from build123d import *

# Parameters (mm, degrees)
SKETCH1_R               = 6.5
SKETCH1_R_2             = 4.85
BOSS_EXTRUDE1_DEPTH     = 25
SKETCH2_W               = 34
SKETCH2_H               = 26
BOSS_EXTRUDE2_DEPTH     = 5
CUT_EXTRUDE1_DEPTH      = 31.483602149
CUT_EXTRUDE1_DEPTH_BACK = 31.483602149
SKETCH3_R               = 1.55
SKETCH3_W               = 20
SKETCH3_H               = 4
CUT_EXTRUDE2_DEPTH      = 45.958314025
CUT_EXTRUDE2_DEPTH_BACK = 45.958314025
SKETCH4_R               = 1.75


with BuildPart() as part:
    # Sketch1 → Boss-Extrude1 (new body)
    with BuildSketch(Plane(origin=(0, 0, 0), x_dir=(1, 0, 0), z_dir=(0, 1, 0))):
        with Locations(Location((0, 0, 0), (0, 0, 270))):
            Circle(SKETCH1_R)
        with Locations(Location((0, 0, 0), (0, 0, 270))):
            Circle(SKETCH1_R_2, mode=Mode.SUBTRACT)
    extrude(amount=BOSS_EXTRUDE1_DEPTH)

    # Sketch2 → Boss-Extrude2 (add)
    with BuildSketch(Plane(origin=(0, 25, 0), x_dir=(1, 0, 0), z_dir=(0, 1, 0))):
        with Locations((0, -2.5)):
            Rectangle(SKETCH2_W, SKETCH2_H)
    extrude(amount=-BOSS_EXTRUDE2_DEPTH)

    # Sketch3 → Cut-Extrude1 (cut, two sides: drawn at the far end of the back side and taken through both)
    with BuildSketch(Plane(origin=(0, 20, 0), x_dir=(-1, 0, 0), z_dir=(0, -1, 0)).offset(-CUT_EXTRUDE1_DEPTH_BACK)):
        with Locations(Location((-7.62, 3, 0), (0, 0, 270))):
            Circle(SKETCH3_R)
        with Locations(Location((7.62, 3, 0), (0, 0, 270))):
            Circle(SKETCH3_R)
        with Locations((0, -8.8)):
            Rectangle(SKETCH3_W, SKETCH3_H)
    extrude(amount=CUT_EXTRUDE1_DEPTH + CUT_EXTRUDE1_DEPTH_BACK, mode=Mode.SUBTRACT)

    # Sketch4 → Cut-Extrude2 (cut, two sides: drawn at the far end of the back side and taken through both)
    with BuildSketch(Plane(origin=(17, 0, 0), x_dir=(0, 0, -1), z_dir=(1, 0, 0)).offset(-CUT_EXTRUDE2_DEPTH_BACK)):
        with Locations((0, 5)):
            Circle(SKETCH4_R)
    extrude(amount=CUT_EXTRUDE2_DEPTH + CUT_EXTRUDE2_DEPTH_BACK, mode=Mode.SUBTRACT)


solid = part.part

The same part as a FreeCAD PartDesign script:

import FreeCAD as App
import Part
import Sketcher

V = App.Vector


def add_polygon(sketch, points):
    """Adds a closed chain of lines whose ends are joined by coincident constraints."""
    first, n = sketch.GeometryCount, len(points)
    for a, b in zip(points, points[1:] + points[:1]):
        sketch.addGeometry(Part.LineSegment(App.Vector(*a, 0), App.Vector(*b, 0)), False)
    for i in range(n):
        sketch.addConstraint(Sketcher.Constraint("Coincident", first + i, 2, first + (i + 1) % n, 1))

doc = App.newDocument("Part")
body = doc.addObject("PartDesign::Body", "Body")

sketch1 = doc.addObject("Sketcher::SketchObject", "Sketch")
body.addObject(sketch1)
sketch1.AttachmentSupport = (doc.XZ_Plane, [""])
sketch1.MapMode = "FlatFace"
sketch1.addGeometry([
    Part.Circle(V(0, 0, 0), V(0, 0, 1), 6.5),
    Part.Circle(V(0, 0, 0), V(0, 0, 1), 4.8),
], False)
sketch1.addConstraint([
    Sketcher.Constraint("Coincident", 0, 3, -1, 1),
    Sketcher.Constraint("Coincident", 1, 3, -1, 1),
    Sketcher.Constraint("Diameter", 0, 13.0),
    Sketcher.Constraint("Diameter", 1, 9.7),
])
pad1 = doc.addObject("PartDesign::Pad", "Pad")
body.addObject(pad1)
pad1.Profile = sketch1
pad1.Length = 25
pad1.Reversed = True

sketch2 = doc.addObject("Sketcher::SketchObject", "Sketch001")
body.addObject(sketch2)
sketch2.AttachmentSupport = (doc.XZ_Plane, [""])
sketch2.MapMode = "FlatFace"
sketch2.AttachmentOffset = App.Placement(V(0, 0, -25), App.Rotation())
add_polygon(sketch2, [(-17, -10), (-17, 16), (17, 16), (17, -10)])
sketch2.addConstraint([
    Sketcher.Constraint("Vertical", 0),
    Sketcher.Constraint("Horizontal", 1),
    Sketcher.Constraint("Vertical", 2),
    Sketcher.Constraint("Horizontal", 3),
    Sketcher.Constraint("DistanceX", 1, 1, 1, 2, 34.0),
    Sketcher.Constraint("DistanceY", 0, 1, 0, 2, 26.0),
    Sketcher.Constraint("DistanceX", 0, 2, -1, 1, 17.0),
    Sketcher.Constraint("DistanceY", -1, 1, 0, 2, 15.5),
])
pad2 = doc.addObject("PartDesign::Pad", "Pad001")
body.addObject(pad2)
pad2.Profile = sketch2
pad2.Length = 5

sketch3 = doc.addObject("Sketcher::SketchObject", "Sketch002")
body.addObject(sketch3)
sketch3.AttachmentSupport = (doc.XZ_Plane, [""])
sketch3.MapMode = "FlatFace"
sketch3.AttachmentOffset = App.Placement(V(0, 0, -20), App.Rotation())
sketch3.addGeometry(Part.Circle(V(7.6, -3, 0), V(0, 0, 1), 1.6), False)
sketch3.addGeometry(Part.Circle(V(-7.6, -3, 0), V(0, 0, 1), 1.6), False)
add_polygon(sketch3, [(10, 6.8), (10, 10.8), (-10, 10.8), (-10, 6.8)])
sketch3.addConstraint([
    Sketcher.Constraint("Vertical", 2),
    Sketcher.Constraint("Horizontal", 3),
    Sketcher.Constraint("Vertical", 4),
    Sketcher.Constraint("Horizontal", 5),
    Sketcher.Constraint("Equal", 0, 1),
    Sketcher.Constraint("Symmetric", 0, 3, 1, 3, -2),
    Sketcher.Constraint("Diameter", 0, 3.1),
    Sketcher.Constraint("DistanceX", 3, 2, 3, 1, 20.0),
    Sketcher.Constraint("DistanceY", 2, 1, 2, 2, 4.0),
    Sketcher.Constraint("DistanceY", 0, 3, -1, 1, 3.0),
    Sketcher.Constraint("DistanceX", -1, 1, 2, 2, 10.0),
    Sketcher.Constraint("DistanceY", -1, 1, 2, 2, 10.8),
    Sketcher.Constraint("DistanceX", -1, 1, 0, 3, 7.62),
])
pocket1 = doc.addObject("PartDesign::Pocket", "Pocket")
body.addObject(pocket1)
pocket1.Profile = sketch3
pocket1.Type = "ThroughAll"
pocket1.Midplane = True

sketch4 = doc.addObject("Sketcher::SketchObject", "Sketch003")
body.addObject(sketch4)
sketch4.AttachmentSupport = (doc.YZ_Plane, [""])
sketch4.MapMode = "FlatFace"
sketch4.AttachmentOffset = App.Placement(V(0, 0, 17), App.Rotation())
sketch4.addGeometry(Part.Circle(V(5, 0, 0), V(0, 0, 1), 1.8), False)
sketch4.addConstraint([
    Sketcher.Constraint("PointOnObject", 0, 3, -1),
    Sketcher.Constraint("Diameter", 0, 3.5),
    Sketcher.Constraint("DistanceX", -1, 1, 0, 3, 5.0),
])
pocket2 = doc.addObject("PartDesign::Pocket", "Pocket001")
body.addObject(pocket2)
pocket2.Profile = sketch4
pocket2.Type = "ThroughAll"
pocket2.Midplane = True

doc.recompute()
